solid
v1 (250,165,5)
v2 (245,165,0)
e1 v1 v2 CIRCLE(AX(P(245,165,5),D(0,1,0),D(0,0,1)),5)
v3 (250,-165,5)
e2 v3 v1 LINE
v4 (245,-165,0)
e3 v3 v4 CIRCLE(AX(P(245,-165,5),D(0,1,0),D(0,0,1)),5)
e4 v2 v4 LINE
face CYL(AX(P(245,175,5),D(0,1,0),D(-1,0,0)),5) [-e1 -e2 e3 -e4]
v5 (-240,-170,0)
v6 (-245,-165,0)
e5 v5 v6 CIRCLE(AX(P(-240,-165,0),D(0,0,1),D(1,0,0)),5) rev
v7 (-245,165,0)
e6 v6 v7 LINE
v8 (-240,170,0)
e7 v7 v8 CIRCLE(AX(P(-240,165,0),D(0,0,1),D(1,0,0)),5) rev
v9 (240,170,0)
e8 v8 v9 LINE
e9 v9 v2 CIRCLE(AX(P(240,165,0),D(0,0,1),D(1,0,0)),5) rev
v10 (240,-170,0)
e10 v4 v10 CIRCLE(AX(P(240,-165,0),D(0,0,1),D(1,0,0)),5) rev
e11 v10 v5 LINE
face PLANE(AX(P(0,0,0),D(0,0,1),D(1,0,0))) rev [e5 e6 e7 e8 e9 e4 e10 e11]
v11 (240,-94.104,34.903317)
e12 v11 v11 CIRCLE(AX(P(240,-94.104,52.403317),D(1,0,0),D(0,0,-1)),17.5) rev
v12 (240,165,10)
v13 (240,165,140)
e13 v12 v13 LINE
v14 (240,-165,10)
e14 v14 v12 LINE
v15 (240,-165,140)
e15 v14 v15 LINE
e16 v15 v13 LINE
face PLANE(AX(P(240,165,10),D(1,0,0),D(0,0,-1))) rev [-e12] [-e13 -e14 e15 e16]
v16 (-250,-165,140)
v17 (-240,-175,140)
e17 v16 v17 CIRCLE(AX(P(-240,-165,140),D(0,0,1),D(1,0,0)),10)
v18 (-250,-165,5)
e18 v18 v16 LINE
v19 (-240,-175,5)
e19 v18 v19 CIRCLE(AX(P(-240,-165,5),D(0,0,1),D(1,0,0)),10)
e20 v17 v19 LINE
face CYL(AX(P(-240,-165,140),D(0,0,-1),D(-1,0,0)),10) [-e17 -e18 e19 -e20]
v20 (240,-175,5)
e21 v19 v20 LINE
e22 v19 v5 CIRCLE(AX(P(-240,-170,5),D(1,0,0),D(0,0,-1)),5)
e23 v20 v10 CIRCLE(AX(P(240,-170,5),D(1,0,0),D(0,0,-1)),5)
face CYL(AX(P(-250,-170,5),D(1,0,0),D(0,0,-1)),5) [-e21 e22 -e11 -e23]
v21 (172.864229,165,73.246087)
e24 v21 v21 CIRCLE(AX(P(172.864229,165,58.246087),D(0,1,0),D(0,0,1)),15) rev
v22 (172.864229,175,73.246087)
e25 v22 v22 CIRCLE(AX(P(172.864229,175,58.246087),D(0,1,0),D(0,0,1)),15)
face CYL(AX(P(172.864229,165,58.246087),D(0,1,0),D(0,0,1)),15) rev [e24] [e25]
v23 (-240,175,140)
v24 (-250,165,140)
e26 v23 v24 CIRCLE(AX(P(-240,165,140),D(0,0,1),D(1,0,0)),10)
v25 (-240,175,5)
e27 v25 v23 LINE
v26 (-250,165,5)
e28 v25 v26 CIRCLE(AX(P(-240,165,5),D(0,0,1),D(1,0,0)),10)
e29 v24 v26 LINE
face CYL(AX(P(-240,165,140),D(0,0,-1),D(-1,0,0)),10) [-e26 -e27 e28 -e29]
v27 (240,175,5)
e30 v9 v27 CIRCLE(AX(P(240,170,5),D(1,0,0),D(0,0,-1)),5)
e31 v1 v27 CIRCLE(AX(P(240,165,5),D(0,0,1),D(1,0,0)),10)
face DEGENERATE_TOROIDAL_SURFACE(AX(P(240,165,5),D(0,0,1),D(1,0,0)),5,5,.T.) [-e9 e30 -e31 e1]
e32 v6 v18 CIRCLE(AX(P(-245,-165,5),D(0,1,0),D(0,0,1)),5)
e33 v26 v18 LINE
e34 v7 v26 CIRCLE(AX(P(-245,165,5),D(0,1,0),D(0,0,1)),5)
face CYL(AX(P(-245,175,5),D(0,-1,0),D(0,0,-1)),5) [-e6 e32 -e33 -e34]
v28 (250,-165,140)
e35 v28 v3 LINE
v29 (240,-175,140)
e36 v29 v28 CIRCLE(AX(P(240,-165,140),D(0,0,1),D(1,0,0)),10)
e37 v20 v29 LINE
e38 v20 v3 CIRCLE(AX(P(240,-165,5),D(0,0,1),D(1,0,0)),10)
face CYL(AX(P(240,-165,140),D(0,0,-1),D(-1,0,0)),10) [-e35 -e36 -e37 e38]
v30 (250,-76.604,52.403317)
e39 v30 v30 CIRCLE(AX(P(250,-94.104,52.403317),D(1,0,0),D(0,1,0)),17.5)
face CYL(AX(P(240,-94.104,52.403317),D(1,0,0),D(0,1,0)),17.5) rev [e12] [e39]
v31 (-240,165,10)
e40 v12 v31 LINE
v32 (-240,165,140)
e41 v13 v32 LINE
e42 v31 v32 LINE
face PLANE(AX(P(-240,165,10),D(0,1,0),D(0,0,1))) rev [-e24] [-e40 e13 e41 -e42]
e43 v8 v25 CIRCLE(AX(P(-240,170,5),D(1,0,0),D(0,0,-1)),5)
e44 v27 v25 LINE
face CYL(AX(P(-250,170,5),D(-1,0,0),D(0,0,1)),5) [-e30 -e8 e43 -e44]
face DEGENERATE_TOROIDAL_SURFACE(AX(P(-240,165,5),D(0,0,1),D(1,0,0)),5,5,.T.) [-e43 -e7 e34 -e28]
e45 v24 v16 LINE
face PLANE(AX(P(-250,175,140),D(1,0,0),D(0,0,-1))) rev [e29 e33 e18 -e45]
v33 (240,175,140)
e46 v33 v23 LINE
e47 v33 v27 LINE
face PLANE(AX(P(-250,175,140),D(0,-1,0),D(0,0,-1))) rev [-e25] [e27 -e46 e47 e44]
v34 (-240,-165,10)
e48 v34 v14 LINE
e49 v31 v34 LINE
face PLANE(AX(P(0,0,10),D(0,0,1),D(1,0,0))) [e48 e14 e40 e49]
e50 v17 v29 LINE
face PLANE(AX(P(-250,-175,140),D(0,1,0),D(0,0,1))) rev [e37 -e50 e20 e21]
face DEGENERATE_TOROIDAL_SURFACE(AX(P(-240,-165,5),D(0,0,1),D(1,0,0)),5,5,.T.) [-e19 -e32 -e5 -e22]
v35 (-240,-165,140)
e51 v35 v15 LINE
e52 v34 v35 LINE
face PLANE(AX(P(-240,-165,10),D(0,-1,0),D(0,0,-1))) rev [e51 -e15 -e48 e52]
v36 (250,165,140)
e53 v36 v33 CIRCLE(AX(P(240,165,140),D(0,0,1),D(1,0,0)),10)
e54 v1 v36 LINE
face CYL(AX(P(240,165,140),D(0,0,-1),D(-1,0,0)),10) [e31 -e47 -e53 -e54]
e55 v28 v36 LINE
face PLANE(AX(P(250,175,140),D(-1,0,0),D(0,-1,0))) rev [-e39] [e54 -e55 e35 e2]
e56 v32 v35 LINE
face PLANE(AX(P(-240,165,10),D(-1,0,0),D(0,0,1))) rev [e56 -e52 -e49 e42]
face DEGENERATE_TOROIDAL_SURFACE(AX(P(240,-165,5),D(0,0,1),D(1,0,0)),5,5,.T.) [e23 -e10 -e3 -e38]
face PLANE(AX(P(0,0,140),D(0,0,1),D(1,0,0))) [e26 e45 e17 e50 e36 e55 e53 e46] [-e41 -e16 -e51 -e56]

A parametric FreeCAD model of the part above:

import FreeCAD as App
import Part
import Sketcher

V = App.Vector
Q = App.Units.Quantity


def edges_at(feature, points):
    """Names of the edges that pass closest to the given points."""
    edges = feature.Shape.Edges
    near = lambda p: min(range(len(edges)), key=lambda i: edges[i].distToShape(Part.Vertex(*p))[0])
    return sorted({f"Edge{near(p) + 1}" for p in points})

doc = App.newDocument("Part")
body = doc.addObject("PartDesign::Body", "Body")

# Sketch on XY plane
sketch1 = doc.addObject("Sketcher::SketchObject", "Sketch")
body.addObject(sketch1)
sketch1.AttachmentSupport = (doc.XY_Plane, [""])
sketch1.MapMode = "FlatFace"
sketch1.addGeometry(Part.LineSegment(V(-250, 175, 0), V(-250, -175, 0)), False)
sketch1.addGeometry(Part.LineSegment(V(-250, -175, 0), V(250, -175, 0)), False)
sketch1.addGeometry(Part.LineSegment(V(250, -175, 0), V(250, 175, 0)), False)
sketch1.addGeometry(Part.LineSegment(V(250, 175, 0), V(-250, 175, 0)), False)
sketch1.addConstraint(Sketcher.Constraint("Coincident", 0, 2, 1, 1))
sketch1.addConstraint(Sketcher.Constraint("Coincident", 1, 2, 2, 1))
sketch1.addConstraint(Sketcher.Constraint("Coincident", 2, 2, 3, 1))
sketch1.addConstraint(Sketcher.Constraint("Coincident", 3, 2, 0, 1))
sketch1.addConstraint(Sketcher.Constraint("Vertical", 0))
sketch1.addConstraint(Sketcher.Constraint("Horizontal", 1))
sketch1.addConstraint(Sketcher.Constraint("Vertical", 2))
sketch1.addConstraint(Sketcher.Constraint("Horizontal", 3))
sketch1.addConstraint(Sketcher.Constraint("Symmetric", 0, 2, 2, 2, -1, 1))
sketch1.addConstraint(Sketcher.Constraint("DistanceX", 1, 1, 1, 2, Q("500 mm")))
sketch1.addConstraint(Sketcher.Constraint("DistanceY", 0, 2, 0, 1, Q("350 mm")))
pad1 = doc.addObject("PartDesign::Pad", "Pad")
body.addObject(pad1)
pad1.Profile = sketch1
pad1.Length = 140

# Sketch on YZ plane
sketch2 = doc.addObject("Sketcher::SketchObject", "Sketch001")
body.addObject(sketch2)
sketch2.AttachmentSupport = (doc.YZ_Plane, [""])
sketch2.MapMode = "FlatFace"
sketch2.AttachmentOffset = App.Placement(V(0, 0, 250), App.Rotation())
sketch2.addGeometry(Part.Circle(V(-94, 52, 0), V(0, 0, 1), 18), False)
sketch2.addConstraint(Sketcher.Constraint("Diameter", 0, Q("35 mm")))
sketch2.addConstraint(Sketcher.Constraint("DistanceX", 0, 3, -1, 1, Q("94.104 mm")))
sketch2.addConstraint(Sketcher.Constraint("DistanceY", -1, 1, 0, 3, Q("52.403317 mm")))
pocket1 = doc.addObject("PartDesign::Pocket", "Pocket")
body.addObject(pocket1)
pocket1.Profile = sketch2
pocket1.Length = 10

# Sketch on XZ plane
sketch3 = doc.addObject("Sketcher::SketchObject", "Sketch002")
body.addObject(sketch3)
sketch3.AttachmentSupport = (doc.XZ_Plane, [""])
sketch3.MapMode = "FlatFace"
sketch3.AttachmentOffset = App.Placement(V(0, 0, -175), App.Rotation())
sketch3.addGeometry(Part.Circle(V(173, 58, 0), V(0, 0, 1), 15), False)
sketch3.addConstraint(Sketcher.Constraint("Diameter", 0, Q("30 mm")))
sketch3.addConstraint(Sketcher.Constraint("DistanceX", -1, 1, 0, 3, Q("172.864229 mm")))
sketch3.addConstraint(Sketcher.Constraint("DistanceY", -1, 1, 0, 3, Q("58.246087 mm")))
pocket2 = doc.addObject("PartDesign::Pocket", "Pocket001")
body.addObject(pocket2)
pocket2.Profile = sketch3
pocket2.Length = 10
pocket2.Reversed = True

# Sketch on XY plane
sketch4 = doc.addObject("Sketcher::SketchObject", "Sketch003")
body.addObject(sketch4)
sketch4.AttachmentSupport = (doc.XY_Plane, [""])
sketch4.MapMode = "FlatFace"
sketch4.AttachmentOffset = App.Placement(V(0, 0, 140), App.Rotation())
sketch4.addGeometry(Part.LineSegment(V(-240, 165, 0), V(-240, -165, 0)), False)
sketch4.addGeometry(Part.LineSegment(V(-240, -165, 0), V(240, -165, 0)), False)
sketch4.addGeometry(Part.LineSegment(V(240, -165, 0), V(240, 165, 0)), False)
sketch4.addGeometry(Part.LineSegment(V(240, 165, 0), V(-240, 165, 0)), False)
sketch4.addConstraint(Sketcher.Constraint("Coincident", 0, 2, 1, 1))
sketch4.addConstraint(Sketcher.Constraint("Coincident", 1, 2, 2, 1))
sketch4.addConstraint(Sketcher.Constraint("Coincident", 2, 2, 3, 1))
sketch4.addConstraint(Sketcher.Constraint("Coincident", 3, 2, 0, 1))
sketch4.addConstraint(Sketcher.Constraint("Vertical", 0))
sketch4.addConstraint(Sketcher.Constraint("Horizontal", 1))
sketch4.addConstraint(Sketcher.Constraint("Vertical", 2))
sketch4.addConstraint(Sketcher.Constraint("Horizontal", 3))
sketch4.addConstraint(Sketcher.Constraint("Symmetric", 0, 2, 2, 2, -1, 1))
sketch4.addConstraint(Sketcher.Constraint("DistanceX", 1, 1, 1, 2, Q("480 mm")))
sketch4.addConstraint(Sketcher.Constraint("DistanceY", 0, 2, 0, 1, Q("330 mm")))
pocket3 = doc.addObject("PartDesign::Pocket", "Pocket002")
body.addObject(pocket3)
pocket3.Profile = sketch4
pocket3.Length = 130
doc.recompute()

fillet = doc.addObject("PartDesign::Fillet", "Fillet")
body.addObject(fillet)
fillet.Base = (pocket3, edges_at(pocket3, [
    (250, -175, 70),
    (-250, -175, 70),
    (-250, 175, 70),
    (250, 175, 70),
]))
fillet.Radius = 10
doc.recompute()

fillet2 = doc.addObject("PartDesign::Fillet", "Fillet001")
body.addObject(fillet2)
fillet2.Base = (fillet, edges_at(fillet, [
    (0, 175, 0),
    (250, 0, 0),
    (0, -175, 0),
    (-250, 0, 0),
    (-247.071, -172.071, 0),
    (-247.071, 172.071, 0),
    (247.071, -172.071, 0),
    (247.071, 172.071, 0),
]))
fillet2.Radius = 5

doc.recompute()
